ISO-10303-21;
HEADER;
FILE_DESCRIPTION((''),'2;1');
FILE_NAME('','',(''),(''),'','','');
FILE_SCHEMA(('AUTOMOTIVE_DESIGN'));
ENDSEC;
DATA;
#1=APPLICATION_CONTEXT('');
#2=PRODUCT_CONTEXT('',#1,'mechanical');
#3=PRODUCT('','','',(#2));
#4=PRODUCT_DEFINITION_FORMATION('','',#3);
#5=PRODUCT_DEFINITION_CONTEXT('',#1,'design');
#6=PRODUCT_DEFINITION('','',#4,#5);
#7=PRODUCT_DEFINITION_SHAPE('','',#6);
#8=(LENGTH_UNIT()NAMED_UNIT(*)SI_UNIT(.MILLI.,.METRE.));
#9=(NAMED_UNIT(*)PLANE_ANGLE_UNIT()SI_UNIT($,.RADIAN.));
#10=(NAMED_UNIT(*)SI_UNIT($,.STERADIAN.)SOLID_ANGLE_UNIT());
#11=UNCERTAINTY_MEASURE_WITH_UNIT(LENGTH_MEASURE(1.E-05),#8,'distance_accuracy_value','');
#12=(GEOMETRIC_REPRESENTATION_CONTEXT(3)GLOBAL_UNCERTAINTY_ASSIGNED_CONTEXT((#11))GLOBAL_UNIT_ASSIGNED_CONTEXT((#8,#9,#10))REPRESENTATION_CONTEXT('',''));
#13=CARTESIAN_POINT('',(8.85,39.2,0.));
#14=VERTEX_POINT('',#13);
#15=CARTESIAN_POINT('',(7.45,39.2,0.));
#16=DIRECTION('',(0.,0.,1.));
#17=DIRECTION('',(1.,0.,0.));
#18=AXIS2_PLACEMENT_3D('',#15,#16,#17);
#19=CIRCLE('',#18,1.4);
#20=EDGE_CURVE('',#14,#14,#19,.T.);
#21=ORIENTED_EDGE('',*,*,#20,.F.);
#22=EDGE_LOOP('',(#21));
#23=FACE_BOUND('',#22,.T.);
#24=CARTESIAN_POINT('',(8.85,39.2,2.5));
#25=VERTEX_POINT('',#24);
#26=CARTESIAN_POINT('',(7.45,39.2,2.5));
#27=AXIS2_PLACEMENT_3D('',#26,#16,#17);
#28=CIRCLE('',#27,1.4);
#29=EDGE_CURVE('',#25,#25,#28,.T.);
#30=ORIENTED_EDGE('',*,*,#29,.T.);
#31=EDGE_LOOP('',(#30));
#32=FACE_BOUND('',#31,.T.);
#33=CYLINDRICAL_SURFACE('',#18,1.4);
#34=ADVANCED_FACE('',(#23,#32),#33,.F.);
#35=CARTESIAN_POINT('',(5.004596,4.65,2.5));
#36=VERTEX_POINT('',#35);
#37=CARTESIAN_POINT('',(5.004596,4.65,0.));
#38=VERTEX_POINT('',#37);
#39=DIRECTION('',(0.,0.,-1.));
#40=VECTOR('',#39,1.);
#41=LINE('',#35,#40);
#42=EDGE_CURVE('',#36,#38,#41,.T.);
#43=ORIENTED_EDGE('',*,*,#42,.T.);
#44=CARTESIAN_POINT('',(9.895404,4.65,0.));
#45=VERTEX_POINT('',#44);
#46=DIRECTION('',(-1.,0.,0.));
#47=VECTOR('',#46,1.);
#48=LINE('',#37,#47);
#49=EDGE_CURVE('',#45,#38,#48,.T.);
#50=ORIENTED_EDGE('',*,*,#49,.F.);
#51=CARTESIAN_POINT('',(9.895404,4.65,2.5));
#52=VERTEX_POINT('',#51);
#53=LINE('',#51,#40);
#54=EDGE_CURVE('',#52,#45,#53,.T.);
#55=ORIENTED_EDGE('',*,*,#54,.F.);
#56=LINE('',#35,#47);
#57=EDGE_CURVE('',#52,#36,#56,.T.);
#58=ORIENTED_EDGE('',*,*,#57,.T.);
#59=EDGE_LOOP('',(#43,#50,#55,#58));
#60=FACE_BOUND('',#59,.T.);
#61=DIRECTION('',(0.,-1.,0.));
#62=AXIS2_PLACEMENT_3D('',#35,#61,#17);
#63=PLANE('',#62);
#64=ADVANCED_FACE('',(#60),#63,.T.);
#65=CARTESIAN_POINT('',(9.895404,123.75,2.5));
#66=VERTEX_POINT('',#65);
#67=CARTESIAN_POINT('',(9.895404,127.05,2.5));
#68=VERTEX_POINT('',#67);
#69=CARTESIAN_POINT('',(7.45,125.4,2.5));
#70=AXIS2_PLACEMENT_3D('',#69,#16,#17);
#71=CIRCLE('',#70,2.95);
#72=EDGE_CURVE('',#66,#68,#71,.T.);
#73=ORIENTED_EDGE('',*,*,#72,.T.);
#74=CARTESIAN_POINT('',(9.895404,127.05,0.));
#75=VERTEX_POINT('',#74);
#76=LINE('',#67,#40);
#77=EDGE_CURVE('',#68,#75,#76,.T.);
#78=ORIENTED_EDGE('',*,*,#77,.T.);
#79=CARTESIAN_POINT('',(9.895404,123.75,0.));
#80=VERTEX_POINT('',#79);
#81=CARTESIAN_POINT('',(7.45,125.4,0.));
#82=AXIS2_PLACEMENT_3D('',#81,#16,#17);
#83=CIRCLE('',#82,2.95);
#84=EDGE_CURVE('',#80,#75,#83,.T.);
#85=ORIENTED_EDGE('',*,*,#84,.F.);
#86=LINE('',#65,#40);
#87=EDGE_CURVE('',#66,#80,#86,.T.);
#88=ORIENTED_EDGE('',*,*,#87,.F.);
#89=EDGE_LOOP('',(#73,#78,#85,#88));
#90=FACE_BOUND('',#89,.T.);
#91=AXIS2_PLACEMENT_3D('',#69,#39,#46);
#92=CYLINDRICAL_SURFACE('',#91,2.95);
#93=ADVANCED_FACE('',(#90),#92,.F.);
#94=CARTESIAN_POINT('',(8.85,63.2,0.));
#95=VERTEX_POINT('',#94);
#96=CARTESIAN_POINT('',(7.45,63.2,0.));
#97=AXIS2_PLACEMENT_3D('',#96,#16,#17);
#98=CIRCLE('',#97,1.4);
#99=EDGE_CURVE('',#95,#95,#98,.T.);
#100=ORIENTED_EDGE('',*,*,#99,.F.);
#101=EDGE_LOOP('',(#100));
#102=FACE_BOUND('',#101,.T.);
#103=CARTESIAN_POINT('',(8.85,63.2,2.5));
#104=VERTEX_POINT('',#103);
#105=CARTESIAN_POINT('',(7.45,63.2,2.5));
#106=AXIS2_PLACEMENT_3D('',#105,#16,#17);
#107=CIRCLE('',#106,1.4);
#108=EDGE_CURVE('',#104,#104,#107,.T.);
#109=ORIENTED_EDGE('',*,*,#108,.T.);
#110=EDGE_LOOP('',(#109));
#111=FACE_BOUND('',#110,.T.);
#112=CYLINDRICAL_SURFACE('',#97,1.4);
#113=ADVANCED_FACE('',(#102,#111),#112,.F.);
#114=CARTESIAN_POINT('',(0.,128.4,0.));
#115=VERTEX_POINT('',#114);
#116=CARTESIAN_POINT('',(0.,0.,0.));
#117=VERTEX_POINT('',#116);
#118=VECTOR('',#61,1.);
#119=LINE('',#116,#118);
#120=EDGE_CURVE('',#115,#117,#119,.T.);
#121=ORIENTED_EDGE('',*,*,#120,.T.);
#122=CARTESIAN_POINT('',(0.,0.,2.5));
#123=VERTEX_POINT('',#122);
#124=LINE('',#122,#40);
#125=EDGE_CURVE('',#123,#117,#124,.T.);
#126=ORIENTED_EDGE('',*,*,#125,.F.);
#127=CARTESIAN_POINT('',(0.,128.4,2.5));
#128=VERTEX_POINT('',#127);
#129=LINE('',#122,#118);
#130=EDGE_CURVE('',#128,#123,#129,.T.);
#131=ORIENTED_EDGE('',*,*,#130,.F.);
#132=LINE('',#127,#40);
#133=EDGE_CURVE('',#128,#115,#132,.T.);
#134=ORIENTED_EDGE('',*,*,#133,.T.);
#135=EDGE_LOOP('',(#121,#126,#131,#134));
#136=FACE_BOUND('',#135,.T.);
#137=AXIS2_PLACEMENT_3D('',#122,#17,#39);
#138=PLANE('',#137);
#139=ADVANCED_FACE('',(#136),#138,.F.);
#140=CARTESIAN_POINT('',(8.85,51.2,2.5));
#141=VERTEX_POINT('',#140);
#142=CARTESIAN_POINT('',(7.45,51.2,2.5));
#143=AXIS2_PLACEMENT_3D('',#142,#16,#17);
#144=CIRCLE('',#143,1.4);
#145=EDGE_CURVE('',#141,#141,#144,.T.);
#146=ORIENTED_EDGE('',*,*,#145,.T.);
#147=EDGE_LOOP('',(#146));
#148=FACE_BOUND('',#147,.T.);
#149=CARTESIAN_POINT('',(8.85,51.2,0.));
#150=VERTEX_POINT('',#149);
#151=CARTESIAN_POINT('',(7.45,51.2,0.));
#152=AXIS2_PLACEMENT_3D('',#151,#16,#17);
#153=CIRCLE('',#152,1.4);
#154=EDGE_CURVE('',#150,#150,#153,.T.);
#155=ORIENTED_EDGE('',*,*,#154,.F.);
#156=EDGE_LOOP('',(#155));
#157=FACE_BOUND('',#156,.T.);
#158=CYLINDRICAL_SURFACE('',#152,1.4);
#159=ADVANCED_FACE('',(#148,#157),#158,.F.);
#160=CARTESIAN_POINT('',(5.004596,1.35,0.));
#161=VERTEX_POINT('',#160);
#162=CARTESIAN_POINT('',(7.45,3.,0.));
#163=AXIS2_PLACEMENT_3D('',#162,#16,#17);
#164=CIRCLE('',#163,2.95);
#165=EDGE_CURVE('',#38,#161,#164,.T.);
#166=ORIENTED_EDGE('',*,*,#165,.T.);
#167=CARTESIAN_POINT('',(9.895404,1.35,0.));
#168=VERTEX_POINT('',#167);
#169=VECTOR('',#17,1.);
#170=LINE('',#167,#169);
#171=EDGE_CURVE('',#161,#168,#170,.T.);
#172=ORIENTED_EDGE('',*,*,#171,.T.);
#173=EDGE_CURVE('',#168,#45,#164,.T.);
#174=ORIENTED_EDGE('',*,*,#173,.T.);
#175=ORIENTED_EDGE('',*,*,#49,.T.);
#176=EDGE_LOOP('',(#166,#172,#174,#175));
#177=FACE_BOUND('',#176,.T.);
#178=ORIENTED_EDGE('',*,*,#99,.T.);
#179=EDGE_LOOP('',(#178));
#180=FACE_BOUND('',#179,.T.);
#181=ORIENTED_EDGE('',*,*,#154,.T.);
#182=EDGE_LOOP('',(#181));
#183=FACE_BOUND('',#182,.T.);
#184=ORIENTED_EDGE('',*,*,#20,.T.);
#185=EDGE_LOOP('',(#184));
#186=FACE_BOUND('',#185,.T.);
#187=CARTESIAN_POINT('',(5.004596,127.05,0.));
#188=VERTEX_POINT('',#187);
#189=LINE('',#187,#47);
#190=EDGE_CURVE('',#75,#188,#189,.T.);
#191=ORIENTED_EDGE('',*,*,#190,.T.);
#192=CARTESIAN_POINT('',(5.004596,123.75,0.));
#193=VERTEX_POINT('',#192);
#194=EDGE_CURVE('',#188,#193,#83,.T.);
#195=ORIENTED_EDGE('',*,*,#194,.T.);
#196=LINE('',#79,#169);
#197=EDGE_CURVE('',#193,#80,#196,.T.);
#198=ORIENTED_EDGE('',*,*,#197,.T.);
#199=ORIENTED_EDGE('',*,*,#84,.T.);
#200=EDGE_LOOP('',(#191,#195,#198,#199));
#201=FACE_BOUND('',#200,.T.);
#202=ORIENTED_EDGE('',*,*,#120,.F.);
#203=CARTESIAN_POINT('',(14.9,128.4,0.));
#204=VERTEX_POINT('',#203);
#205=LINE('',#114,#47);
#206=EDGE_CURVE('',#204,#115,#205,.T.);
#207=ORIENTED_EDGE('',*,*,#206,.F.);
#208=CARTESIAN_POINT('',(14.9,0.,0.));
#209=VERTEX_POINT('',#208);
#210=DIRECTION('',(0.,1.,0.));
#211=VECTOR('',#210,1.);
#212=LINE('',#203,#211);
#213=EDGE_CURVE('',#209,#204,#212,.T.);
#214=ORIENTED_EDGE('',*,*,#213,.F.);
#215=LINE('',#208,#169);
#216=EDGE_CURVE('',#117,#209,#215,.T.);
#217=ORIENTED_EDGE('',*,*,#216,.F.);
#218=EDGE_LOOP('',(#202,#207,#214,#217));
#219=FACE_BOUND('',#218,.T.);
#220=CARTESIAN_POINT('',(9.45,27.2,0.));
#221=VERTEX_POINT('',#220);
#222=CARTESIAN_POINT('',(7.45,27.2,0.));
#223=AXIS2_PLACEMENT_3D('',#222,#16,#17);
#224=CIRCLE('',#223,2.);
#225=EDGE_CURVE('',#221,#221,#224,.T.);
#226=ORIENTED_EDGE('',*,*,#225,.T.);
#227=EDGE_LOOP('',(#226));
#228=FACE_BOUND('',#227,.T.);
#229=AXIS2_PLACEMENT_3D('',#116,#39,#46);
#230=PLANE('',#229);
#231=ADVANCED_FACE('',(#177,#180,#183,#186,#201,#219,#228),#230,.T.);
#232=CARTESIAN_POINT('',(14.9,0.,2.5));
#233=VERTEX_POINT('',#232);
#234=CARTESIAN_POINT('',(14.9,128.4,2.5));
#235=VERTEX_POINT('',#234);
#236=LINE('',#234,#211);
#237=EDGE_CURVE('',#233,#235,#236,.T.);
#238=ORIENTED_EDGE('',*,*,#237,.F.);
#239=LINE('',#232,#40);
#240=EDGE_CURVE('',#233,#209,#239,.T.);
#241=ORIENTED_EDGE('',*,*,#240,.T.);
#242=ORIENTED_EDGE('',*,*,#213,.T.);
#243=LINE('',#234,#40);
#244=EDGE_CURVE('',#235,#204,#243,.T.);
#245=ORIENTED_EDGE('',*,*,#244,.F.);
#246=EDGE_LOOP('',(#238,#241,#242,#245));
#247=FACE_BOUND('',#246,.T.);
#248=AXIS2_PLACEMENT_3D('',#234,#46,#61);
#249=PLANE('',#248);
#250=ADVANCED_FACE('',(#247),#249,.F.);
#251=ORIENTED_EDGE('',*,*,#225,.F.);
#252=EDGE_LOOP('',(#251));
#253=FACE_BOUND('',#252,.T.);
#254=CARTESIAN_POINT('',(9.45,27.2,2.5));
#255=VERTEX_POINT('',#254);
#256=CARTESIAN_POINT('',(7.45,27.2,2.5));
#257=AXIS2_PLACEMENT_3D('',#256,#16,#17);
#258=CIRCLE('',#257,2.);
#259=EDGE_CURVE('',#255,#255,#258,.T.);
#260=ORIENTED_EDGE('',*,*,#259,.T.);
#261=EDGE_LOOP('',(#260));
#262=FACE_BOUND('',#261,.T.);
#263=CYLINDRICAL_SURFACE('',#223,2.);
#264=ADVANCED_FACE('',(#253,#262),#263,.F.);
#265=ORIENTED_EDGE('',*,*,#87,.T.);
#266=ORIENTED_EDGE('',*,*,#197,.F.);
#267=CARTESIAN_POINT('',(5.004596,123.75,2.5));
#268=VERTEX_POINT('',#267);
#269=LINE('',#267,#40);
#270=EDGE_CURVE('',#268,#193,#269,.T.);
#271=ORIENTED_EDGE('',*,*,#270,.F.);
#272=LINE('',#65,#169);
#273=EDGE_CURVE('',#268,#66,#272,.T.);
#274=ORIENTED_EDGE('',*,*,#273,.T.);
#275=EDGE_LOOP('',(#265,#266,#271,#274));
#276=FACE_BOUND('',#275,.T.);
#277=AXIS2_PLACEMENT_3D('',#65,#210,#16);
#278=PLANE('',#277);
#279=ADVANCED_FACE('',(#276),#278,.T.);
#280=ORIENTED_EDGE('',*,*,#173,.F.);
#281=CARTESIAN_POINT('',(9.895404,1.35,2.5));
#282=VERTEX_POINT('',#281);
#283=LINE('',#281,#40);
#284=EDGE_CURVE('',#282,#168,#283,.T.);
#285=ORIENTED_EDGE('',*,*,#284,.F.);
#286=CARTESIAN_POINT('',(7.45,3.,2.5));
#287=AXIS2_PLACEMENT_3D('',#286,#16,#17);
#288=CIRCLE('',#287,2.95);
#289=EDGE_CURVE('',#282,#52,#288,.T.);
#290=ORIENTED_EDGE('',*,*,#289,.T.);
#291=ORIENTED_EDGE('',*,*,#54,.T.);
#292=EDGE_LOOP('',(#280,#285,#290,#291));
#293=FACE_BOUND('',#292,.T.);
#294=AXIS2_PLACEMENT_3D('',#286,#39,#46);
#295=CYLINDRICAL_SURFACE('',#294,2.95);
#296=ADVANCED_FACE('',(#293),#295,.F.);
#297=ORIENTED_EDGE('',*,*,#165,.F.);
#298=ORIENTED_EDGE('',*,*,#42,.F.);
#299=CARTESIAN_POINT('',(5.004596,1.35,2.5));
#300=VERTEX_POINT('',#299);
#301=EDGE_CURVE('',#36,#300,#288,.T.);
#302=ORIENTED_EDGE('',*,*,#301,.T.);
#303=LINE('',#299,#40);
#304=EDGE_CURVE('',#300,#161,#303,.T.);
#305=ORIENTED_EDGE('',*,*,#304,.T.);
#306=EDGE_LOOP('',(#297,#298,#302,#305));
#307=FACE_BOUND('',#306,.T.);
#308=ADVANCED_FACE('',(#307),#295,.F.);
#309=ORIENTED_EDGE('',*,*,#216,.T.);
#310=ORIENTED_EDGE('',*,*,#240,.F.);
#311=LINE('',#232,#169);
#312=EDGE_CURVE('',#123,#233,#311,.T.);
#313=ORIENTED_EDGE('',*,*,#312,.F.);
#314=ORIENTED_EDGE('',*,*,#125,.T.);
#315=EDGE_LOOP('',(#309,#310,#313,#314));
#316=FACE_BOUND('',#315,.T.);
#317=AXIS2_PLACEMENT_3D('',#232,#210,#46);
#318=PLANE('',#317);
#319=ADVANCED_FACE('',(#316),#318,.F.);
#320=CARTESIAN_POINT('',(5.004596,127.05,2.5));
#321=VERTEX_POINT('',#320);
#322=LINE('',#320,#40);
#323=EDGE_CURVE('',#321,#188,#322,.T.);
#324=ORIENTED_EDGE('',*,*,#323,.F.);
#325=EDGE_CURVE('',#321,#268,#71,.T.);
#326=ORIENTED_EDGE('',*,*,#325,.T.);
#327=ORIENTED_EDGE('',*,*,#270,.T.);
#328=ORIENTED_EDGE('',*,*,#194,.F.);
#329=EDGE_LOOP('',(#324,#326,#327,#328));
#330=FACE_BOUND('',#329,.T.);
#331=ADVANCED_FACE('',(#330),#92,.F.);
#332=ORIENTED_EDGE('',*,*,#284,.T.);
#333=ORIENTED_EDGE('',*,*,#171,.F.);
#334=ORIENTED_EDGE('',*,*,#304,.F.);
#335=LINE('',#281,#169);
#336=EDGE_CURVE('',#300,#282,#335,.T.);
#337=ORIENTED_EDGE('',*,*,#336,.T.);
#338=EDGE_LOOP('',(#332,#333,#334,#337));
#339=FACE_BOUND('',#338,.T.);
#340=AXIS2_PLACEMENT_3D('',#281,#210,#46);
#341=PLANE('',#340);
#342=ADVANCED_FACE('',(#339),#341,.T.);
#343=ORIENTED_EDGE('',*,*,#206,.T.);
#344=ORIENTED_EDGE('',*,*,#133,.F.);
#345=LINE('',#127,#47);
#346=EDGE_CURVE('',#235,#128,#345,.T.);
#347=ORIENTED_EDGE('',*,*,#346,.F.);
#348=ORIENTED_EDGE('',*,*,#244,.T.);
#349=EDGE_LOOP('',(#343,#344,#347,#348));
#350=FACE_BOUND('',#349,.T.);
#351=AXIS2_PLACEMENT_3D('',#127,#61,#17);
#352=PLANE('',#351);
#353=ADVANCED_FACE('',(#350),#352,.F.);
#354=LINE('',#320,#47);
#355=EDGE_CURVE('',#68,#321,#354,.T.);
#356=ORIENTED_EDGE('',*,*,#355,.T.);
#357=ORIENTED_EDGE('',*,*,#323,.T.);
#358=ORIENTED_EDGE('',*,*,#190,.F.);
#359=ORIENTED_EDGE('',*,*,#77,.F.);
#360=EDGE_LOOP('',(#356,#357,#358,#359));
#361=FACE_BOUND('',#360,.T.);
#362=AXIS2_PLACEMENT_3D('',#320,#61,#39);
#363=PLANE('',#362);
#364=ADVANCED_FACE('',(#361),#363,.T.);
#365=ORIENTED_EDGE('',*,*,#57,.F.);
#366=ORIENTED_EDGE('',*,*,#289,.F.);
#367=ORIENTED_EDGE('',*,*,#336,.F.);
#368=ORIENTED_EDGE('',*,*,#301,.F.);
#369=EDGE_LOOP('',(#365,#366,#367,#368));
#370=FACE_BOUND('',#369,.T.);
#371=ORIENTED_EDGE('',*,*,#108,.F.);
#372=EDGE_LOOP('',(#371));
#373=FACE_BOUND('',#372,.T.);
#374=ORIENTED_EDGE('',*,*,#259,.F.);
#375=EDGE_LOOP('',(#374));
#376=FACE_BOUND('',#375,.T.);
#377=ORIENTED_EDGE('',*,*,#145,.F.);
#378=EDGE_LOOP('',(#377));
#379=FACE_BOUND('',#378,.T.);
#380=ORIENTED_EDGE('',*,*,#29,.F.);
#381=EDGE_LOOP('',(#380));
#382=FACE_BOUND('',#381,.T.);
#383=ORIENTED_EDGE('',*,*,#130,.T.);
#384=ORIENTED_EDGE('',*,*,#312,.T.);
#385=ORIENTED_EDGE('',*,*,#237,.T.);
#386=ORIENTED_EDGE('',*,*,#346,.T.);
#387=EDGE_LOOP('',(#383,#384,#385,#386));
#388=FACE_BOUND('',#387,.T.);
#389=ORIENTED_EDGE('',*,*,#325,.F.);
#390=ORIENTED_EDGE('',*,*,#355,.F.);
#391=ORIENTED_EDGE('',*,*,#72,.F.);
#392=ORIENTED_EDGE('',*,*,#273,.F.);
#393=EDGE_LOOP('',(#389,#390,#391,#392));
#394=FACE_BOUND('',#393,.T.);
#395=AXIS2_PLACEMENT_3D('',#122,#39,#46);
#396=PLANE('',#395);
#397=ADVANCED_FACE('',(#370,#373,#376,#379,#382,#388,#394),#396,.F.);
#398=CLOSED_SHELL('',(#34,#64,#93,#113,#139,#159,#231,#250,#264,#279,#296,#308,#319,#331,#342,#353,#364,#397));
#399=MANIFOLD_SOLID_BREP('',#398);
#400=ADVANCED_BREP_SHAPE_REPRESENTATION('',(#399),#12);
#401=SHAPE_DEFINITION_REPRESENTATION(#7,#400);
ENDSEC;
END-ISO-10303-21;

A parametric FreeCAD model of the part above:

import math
import FreeCAD as App
import Part
import Sketcher
from FreeCAD import Vector

doc = App.newDocument("Part")
body = doc.addObject("PartDesign::Body", "Body")

# Sketch on XY plane
sketch1 = doc.addObject("Sketcher::SketchObject", "Sketch")
body.addObject(sketch1)
sketch1.AttachmentSupport = (doc.XY_Plane, [""])
sketch1.MapMode = "FlatFace"
sketch1.addGeometry(Part.LineSegment(Vector(0, 128.4, 0), Vector(0, 0, 0)), False)
sketch1.addGeometry(Part.LineSegment(Vector(0, 0, 0), Vector(14.9, 0, 0)), False)
sketch1.addGeometry(Part.LineSegment(Vector(14.9, 0, 0), Vector(14.9, 128.4, 0)), False)
sketch1.addGeometry(Part.LineSegment(Vector(14.9, 128.4, 0), Vector(0, 128.4, 0)), False)
sketch1.addGeometry(Part.ArcOfCircle(Part.Circle(Vector(7.5, 3, 0), Vector(0, 0, 1), 2.9), math.radians(-34), math.radians(34)), False)
sketch1.addGeometry(Part.LineSegment(Vector(9.9, 1.4, 0), Vector(5, 1.4, 0)), False)
sketch1.addGeometry(Part.ArcOfCircle(Part.Circle(Vector(7.4, 3, 0), Vector(0, 0, 1), 2.9), math.radians(146), math.radians(214)), False)
sketch1.addGeometry(Part.LineSegment(Vector(5, 4.7, 0), Vector(9.9, 4.7, 0)), False)
sketch1.addGeometry(Part.ArcOfCircle(Part.Circle(Vector(7.5, 125.4, 0), Vector(0, 0, 1), 2.9), math.radians(-34), math.radians(34)), False)
sketch1.addGeometry(Part.LineSegment(Vector(9.9, 123.8, 0), Vector(5, 123.8, 0)), False)
sketch1.addGeometry(Part.ArcOfCircle(Part.Circle(Vector(7.4, 125.4, 0), Vector(0, 0, 1), 2.9), math.radians(146), math.radians(214)), False)
sketch1.addGeometry(Part.LineSegment(Vector(5, 127, 0), Vector(9.9, 127, 0)), False)
sketch1.addConstraint(Sketcher.Constraint("Coincident", 0, 2, 1, 1))
sketch1.addConstraint(Sketcher.Constraint("Coincident", 1, 2, 2, 1))
sketch1.addConstraint(Sketcher.Constraint("Coincident", 2, 2, 3, 1))
sketch1.addConstraint(Sketcher.Constraint("Coincident", 3, 2, 0, 1))
sketch1.addConstraint(Sketcher.Constraint("Coincident", 4, 1, 5, 1))
sketch1.addConstraint(Sketcher.Constraint("Coincident", 5, 2, 6, 2))
sketch1.addConstraint(Sketcher.Constraint("Coincident", 6, 1, 7, 1))
sketch1.addConstraint(Sketcher.Constraint("Coincident", 7, 2, 4, 2))
sketch1.addConstraint(Sketcher.Constraint("Coincident", 8, 1, 9, 1))
sketch1.addConstraint(Sketcher.Constraint("Coincident", 9, 2, 10, 2))
sketch1.addConstraint(Sketcher.Constraint("Coincident", 10, 1, 11, 1))
sketch1.addConstraint(Sketcher.Constraint("Coincident", 11, 2, 8, 2))
sketch1.addConstraint(Sketcher.Constraint("Vertical", 0))
sketch1.addConstraint(Sketcher.Constraint("Horizontal", 1))
sketch1.addConstraint(Sketcher.Constraint("Vertical", 2))
sketch1.addConstraint(Sketcher.Constraint("Horizontal", 3))
sketch1.addConstraint(Sketcher.Constraint("Horizontal", 5))
sketch1.addConstraint(Sketcher.Constraint("Horizontal", 7))
sketch1.addConstraint(Sketcher.Constraint("Horizontal", 9))
sketch1.addConstraint(Sketcher.Constraint("Horizontal", 11))
sketch1.addConstraint(Sketcher.Constraint("Coincident", 0, 2, -1, 1))
sketch1.addConstraint(Sketcher.Constraint("Coincident", 6, 3, 4, 3))
sketch1.addConstraint(Sketcher.Constraint("Coincident", 10, 3, 8, 3))
sketch1.addConstraint(Sketcher.Constraint("Equal", 4, 6))
sketch1.addConstraint(Sketcher.Constraint("Equal", 6, 8))
sketch1.addConstraint(Sketcher.Constraint("Equal", 8, 10))
sketch1.addConstraint(Sketcher.Constraint("Vertical", 6, 3, 8, 3))
sketch1.addConstraint(Sketcher.Constraint("Vertical", 5, 2, 6, 1))
sketch1.addConstraint(Sketcher.Constraint("Vertical", 7, 2, 8, 1))
sketch1.addConstraint(Sketcher.Constraint("Vertical", 9, 2, 10, 1))
sketch1.addConstraint(Sketcher.Constraint("Radius", 4, 2.95))
sketch1.addConstraint(Sketcher.Constraint("DistanceX", 1, 1, 1, 2, 14.9))
sketch1.addConstraint(Sketcher.Constraint("DistanceY", 0, 2, 0, 1, 128.4))
sketch1.addConstraint(Sketcher.Constraint("DistanceY", -1, 1, 4, 3, 3.0))
sketch1.addConstraint(Sketcher.Constraint("DistanceY", 8, 3, 2, 2, 3.0))
sketch1.addConstraint(Sketcher.Constraint("DistanceY", 5, 2, 6, 1, 3.3))
sketch1.addConstraint(Sketcher.Constraint("DistanceX", -1, 1, 4, 3, 7.45))
pad1 = doc.addObject("PartDesign::Pad", "Pad")
body.addObject(pad1)
pad1.Profile = sketch1
pad1.Length = 2.5

# Sketch on XY plane
sketch2 = doc.addObject("Sketcher::SketchObject", "Sketch001")
body.addObject(sketch2)
sketch2.AttachmentSupport = (doc.XY_Plane, [""])
sketch2.MapMode = "FlatFace"
sketch2.AttachmentOffset = App.Placement(Vector(0, 0, 2.5), App.Rotation())
sketch2.addGeometry(Part.Circle(Vector(7.5, 63.2, 0), Vector(0, 0, 1), 1.4), False)
sketch2.addGeometry(Part.Circle(Vector(7.5, 51.2, 0), Vector(0, 0, 1), 1.4), False)
sketch2.addGeometry(Part.Circle(Vector(7.5, 39.2, 0), Vector(0, 0, 1), 1.4), False)
sketch2.addGeometry(Part.Circle(Vector(7.5, 27.2, 0), Vector(0, 0, 1), 2), False)
sketch2.addConstraint(Sketcher.Constraint("Equal", 0, 1))
sketch2.addConstraint(Sketcher.Constraint("Equal", 1, 2))
sketch2.addConstraint(Sketcher.Constraint("Vertical", 0, 3, 1, 3))
sketch2.addConstraint(Sketcher.Constraint("Vertical", 1, 3, 2, 3))
sketch2.addConstraint(Sketcher.Constraint("Vertical", 2, 3, 3, 3))
sketch2.addConstraint(Sketcher.Constraint("Diameter", 3, 4.0))
sketch2.addConstraint(Sketcher.Constraint("Diameter", 0, 2.8))
sketch2.addConstraint(Sketcher.Constraint("DistanceY", 1, 3, 0, 3, 12.0))
sketch2.addConstraint(Sketcher.Constraint("DistanceY", 2, 3, 1, 3, 12.0))
sketch2.addConstraint(Sketcher.Constraint("DistanceY", 3, 3, 2, 3, 12.0))
sketch2.addConstraint(Sketcher.Constraint("DistanceY", -1, 1, 0, 3, 63.2))
sketch2.addConstraint(Sketcher.Constraint("DistanceX", -1, 1, 0, 3, 7.45))
pocket1 = doc.addObject("PartDesign::Pocket", "Pocket")
body.addObject(pocket1)
pocket1.Profile = sketch2
pocket1.Type = "ThroughAll"

doc.recompute()
